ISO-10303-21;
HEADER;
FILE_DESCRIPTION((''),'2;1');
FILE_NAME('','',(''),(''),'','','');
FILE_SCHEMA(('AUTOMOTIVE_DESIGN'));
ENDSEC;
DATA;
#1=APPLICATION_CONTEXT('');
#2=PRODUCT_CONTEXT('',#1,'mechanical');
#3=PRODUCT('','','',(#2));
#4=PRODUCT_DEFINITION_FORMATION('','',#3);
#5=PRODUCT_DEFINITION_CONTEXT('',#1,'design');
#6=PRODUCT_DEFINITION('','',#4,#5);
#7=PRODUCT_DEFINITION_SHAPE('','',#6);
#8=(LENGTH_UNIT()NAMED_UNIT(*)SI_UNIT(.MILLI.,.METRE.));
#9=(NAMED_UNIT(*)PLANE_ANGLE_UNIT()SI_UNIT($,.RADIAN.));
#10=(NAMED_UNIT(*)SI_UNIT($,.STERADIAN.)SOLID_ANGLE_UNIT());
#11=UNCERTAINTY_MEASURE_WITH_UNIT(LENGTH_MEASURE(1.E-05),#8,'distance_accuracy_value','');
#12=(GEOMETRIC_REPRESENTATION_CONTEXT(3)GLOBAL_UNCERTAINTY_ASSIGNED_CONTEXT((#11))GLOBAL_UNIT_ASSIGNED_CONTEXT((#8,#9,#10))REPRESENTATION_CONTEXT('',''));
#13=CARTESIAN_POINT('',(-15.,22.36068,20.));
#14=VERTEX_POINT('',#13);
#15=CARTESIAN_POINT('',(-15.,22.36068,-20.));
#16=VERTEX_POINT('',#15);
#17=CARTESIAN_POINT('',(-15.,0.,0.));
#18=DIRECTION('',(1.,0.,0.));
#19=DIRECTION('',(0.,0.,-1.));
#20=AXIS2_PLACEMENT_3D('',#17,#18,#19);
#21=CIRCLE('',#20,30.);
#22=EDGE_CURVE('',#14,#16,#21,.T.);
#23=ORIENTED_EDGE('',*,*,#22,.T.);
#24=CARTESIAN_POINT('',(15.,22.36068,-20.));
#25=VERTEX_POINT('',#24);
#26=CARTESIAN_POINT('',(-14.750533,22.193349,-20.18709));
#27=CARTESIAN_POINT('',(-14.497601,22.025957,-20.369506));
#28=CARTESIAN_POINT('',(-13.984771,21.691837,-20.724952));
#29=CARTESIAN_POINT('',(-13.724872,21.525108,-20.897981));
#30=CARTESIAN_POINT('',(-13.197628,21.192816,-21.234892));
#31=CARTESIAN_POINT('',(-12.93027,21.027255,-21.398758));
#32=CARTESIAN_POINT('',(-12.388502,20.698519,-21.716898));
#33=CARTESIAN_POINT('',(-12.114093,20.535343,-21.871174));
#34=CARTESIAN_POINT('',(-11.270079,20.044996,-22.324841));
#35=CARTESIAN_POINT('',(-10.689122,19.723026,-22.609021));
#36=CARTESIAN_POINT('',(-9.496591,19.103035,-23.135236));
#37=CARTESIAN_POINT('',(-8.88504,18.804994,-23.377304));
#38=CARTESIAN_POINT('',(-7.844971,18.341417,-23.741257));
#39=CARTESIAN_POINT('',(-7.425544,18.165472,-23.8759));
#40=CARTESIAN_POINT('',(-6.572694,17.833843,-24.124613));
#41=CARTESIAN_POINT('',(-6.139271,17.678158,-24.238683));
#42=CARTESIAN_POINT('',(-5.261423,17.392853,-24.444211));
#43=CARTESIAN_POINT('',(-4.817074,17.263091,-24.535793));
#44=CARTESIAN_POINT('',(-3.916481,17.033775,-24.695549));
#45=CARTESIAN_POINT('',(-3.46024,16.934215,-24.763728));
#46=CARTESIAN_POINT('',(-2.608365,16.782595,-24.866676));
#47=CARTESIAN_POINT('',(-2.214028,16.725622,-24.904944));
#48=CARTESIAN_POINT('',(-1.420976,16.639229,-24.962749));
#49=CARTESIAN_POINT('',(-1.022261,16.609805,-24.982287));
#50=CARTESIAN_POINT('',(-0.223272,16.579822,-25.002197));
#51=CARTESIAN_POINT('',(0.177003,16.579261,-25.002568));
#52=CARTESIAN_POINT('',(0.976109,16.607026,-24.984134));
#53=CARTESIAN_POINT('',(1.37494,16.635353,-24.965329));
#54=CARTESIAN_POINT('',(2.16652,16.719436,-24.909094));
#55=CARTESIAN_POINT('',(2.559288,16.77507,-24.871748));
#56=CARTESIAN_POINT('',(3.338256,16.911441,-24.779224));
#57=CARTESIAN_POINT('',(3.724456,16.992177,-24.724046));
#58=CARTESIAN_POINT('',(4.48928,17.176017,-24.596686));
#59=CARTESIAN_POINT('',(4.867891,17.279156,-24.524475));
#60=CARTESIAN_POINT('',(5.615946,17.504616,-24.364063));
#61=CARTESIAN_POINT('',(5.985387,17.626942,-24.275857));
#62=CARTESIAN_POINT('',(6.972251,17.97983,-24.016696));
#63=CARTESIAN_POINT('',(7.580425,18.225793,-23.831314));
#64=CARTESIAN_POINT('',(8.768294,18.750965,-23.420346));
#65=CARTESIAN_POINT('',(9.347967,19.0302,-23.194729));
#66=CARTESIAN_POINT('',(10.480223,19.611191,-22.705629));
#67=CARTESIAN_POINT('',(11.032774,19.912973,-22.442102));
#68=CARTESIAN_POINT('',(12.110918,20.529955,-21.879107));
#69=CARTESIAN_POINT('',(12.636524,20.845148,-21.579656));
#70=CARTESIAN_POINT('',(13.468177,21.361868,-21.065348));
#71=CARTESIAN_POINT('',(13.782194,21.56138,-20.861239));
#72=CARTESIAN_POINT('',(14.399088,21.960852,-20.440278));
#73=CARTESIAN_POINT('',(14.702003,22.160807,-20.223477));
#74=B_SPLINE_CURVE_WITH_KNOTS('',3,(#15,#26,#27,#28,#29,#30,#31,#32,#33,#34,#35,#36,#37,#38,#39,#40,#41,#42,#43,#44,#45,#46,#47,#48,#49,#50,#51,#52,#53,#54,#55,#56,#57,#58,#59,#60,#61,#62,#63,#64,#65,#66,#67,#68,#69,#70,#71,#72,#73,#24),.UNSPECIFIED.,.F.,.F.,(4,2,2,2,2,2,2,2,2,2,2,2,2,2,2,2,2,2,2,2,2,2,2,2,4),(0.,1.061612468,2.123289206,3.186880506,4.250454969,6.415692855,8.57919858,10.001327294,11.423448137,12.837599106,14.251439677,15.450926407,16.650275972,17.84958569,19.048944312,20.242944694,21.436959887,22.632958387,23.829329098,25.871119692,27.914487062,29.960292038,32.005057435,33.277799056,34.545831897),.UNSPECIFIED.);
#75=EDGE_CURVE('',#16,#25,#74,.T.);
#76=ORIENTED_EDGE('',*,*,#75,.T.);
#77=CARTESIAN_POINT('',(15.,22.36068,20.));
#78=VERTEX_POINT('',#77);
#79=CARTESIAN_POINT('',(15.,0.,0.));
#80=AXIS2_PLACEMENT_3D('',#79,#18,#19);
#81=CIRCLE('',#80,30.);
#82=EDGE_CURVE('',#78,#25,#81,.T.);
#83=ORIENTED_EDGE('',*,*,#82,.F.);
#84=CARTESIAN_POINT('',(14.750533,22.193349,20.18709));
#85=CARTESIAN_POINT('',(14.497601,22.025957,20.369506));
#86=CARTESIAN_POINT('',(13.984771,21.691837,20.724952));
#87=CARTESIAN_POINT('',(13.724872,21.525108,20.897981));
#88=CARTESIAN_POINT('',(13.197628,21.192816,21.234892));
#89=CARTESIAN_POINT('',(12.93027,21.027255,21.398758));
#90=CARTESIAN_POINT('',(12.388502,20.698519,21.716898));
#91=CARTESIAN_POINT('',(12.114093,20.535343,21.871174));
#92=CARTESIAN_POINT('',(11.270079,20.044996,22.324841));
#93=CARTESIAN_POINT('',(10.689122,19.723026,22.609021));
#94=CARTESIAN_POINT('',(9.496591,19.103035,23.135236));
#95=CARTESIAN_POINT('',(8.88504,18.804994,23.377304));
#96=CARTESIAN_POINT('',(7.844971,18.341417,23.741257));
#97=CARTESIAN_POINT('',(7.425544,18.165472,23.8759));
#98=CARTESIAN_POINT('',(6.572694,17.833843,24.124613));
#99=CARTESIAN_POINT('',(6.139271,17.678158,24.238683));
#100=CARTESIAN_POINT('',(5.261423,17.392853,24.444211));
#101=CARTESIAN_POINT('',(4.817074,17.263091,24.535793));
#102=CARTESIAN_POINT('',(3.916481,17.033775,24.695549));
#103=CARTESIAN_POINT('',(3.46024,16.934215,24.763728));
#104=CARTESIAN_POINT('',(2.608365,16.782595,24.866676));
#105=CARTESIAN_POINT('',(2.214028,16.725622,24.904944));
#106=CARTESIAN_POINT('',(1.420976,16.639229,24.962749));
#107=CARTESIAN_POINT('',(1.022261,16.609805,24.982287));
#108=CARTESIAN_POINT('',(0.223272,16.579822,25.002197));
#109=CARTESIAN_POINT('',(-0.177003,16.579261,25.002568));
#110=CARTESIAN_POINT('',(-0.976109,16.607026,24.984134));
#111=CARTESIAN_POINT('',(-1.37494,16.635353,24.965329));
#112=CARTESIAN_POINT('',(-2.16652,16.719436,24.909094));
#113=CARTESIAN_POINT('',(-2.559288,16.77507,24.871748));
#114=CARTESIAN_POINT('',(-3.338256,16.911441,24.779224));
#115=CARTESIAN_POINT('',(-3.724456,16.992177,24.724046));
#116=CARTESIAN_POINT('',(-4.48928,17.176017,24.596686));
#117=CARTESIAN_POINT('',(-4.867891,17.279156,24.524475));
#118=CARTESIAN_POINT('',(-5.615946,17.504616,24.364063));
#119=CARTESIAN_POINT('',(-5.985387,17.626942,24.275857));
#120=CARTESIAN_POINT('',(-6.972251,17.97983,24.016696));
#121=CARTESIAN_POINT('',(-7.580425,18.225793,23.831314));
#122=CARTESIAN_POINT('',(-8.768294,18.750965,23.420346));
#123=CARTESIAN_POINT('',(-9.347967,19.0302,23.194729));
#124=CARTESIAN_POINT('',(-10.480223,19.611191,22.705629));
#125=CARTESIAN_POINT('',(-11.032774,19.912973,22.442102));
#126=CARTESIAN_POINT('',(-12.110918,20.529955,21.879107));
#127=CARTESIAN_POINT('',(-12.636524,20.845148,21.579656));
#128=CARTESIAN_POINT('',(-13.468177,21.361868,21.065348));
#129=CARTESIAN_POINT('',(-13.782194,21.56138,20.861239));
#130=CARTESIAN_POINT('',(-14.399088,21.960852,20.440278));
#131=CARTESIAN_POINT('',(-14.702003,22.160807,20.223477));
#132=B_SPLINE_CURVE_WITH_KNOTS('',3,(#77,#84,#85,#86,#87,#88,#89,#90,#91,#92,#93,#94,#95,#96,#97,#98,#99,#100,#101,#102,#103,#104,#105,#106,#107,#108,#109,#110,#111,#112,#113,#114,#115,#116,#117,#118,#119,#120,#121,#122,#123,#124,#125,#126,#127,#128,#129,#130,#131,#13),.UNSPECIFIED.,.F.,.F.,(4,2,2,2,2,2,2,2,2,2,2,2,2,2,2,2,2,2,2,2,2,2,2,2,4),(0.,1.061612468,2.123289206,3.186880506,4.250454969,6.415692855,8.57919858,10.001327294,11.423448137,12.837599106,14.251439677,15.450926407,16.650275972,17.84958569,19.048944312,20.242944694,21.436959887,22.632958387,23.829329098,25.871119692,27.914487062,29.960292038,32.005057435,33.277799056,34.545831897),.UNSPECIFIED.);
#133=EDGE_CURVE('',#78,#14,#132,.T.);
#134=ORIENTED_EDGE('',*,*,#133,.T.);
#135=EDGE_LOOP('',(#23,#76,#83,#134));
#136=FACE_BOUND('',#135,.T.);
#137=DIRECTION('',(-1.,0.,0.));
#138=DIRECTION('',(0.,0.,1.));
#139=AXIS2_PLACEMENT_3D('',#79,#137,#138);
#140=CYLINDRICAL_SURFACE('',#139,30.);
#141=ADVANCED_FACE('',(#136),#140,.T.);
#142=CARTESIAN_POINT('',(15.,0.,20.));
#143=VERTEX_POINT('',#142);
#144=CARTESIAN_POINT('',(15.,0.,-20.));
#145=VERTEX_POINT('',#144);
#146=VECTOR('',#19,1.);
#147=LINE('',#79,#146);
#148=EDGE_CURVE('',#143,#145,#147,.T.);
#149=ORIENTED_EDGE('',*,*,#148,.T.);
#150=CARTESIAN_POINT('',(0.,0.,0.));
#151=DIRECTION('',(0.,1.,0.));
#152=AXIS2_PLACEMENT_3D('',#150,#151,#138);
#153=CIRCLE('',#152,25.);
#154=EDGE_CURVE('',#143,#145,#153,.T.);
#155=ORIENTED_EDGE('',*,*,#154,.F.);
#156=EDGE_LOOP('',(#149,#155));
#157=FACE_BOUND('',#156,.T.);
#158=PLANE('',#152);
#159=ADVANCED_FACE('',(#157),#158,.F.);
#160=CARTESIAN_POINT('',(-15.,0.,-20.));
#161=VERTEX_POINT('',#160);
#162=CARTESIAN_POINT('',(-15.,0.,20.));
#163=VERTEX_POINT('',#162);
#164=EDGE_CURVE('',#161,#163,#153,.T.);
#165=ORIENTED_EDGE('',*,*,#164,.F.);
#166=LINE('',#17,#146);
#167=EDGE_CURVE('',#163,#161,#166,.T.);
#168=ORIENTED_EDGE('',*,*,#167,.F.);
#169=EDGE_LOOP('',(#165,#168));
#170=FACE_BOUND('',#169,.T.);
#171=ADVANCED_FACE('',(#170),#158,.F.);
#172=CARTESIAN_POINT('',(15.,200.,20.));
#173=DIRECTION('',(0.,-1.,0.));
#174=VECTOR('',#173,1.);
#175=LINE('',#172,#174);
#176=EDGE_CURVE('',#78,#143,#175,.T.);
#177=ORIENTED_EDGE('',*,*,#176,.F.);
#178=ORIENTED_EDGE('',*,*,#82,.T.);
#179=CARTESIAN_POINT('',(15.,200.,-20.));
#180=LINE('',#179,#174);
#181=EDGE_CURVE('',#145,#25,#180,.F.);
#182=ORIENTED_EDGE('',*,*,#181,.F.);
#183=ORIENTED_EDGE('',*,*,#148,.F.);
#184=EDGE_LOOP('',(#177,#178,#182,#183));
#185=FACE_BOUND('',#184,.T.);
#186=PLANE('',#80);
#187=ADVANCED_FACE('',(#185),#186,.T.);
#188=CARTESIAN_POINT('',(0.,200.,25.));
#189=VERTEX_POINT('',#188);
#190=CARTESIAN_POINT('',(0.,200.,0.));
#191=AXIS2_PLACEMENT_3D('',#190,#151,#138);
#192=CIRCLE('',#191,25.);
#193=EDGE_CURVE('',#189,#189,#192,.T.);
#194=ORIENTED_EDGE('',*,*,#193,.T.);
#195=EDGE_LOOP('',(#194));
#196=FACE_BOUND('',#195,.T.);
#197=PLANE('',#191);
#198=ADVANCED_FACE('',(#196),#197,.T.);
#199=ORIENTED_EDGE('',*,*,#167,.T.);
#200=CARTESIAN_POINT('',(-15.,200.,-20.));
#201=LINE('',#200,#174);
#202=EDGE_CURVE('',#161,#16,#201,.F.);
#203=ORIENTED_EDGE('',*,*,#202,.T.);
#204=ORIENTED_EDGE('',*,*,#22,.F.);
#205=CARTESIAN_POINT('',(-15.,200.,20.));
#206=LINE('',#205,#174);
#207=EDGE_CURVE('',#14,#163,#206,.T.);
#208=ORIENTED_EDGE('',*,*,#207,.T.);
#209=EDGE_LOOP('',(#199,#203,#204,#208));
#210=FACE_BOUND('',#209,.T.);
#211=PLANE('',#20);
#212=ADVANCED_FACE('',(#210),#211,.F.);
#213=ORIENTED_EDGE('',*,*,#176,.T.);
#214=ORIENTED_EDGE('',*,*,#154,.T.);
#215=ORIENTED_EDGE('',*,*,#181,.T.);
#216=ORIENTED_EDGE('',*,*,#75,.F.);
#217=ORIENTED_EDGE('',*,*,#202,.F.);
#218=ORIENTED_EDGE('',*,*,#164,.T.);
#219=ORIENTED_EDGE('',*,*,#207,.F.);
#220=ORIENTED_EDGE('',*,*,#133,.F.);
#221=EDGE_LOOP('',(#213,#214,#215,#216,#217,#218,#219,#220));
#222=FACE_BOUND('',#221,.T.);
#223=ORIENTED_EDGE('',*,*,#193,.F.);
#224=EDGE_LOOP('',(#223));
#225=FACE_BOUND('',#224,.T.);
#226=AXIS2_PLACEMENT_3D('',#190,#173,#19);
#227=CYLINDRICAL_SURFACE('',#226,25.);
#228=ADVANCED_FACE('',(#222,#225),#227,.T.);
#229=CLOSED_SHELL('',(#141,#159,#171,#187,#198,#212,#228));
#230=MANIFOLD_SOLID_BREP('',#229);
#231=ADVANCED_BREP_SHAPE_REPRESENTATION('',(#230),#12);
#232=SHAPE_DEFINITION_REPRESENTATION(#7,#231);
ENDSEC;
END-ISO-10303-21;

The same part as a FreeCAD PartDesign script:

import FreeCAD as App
import Part
import Sketcher

doc = App.newDocument("Part")
body = doc.addObject("PartDesign::Body", "Body")

# Sketch on XZ plane
sketch1 = body.newObject("Sketcher::SketchObject", "Sketch")
sketch1.AttachmentSupport = (doc.getObject("XZ_Plane"), [""])
sketch1.MapMode = "FlatFace"
sketch1.addGeometry(Part.Circle(App.Vector(0, 0, 0), App.Vector(0, 0, 1), 25), False)
sketch1.addConstraint([
    Sketcher.Constraint("Coincident", 0, 3, -1, 1),
    Sketcher.Constraint("Diameter", 0, 50.0),
])
pad1 = body.newObject("PartDesign::Pad", "Pad")
pad1.Profile = sketch1
pad1.Length = 200
pad1.Reversed = True

# Sketch on YZ plane
sketch2 = body.newObject("Sketcher::SketchObject", "Sketch001")
sketch2.AttachmentSupport = (doc.getObject("YZ_Plane"), [""])
sketch2.MapMode = "FlatFace"
sketch2.addGeometry(Part.Circle(App.Vector(0, 0, 0), App.Vector(0, 0, 1), 30), False)
sketch2.addConstraint([
    Sketcher.Constraint("Coincident", 0, 3, -1, 1),
    Sketcher.Constraint("Diameter", 0, 60.0),
])
pad2 = body.newObject("PartDesign::Pad", "Pad001")
pad2.Profile = sketch2
pad2.Length = 30
pad2.Midplane = True

doc.recompute()
